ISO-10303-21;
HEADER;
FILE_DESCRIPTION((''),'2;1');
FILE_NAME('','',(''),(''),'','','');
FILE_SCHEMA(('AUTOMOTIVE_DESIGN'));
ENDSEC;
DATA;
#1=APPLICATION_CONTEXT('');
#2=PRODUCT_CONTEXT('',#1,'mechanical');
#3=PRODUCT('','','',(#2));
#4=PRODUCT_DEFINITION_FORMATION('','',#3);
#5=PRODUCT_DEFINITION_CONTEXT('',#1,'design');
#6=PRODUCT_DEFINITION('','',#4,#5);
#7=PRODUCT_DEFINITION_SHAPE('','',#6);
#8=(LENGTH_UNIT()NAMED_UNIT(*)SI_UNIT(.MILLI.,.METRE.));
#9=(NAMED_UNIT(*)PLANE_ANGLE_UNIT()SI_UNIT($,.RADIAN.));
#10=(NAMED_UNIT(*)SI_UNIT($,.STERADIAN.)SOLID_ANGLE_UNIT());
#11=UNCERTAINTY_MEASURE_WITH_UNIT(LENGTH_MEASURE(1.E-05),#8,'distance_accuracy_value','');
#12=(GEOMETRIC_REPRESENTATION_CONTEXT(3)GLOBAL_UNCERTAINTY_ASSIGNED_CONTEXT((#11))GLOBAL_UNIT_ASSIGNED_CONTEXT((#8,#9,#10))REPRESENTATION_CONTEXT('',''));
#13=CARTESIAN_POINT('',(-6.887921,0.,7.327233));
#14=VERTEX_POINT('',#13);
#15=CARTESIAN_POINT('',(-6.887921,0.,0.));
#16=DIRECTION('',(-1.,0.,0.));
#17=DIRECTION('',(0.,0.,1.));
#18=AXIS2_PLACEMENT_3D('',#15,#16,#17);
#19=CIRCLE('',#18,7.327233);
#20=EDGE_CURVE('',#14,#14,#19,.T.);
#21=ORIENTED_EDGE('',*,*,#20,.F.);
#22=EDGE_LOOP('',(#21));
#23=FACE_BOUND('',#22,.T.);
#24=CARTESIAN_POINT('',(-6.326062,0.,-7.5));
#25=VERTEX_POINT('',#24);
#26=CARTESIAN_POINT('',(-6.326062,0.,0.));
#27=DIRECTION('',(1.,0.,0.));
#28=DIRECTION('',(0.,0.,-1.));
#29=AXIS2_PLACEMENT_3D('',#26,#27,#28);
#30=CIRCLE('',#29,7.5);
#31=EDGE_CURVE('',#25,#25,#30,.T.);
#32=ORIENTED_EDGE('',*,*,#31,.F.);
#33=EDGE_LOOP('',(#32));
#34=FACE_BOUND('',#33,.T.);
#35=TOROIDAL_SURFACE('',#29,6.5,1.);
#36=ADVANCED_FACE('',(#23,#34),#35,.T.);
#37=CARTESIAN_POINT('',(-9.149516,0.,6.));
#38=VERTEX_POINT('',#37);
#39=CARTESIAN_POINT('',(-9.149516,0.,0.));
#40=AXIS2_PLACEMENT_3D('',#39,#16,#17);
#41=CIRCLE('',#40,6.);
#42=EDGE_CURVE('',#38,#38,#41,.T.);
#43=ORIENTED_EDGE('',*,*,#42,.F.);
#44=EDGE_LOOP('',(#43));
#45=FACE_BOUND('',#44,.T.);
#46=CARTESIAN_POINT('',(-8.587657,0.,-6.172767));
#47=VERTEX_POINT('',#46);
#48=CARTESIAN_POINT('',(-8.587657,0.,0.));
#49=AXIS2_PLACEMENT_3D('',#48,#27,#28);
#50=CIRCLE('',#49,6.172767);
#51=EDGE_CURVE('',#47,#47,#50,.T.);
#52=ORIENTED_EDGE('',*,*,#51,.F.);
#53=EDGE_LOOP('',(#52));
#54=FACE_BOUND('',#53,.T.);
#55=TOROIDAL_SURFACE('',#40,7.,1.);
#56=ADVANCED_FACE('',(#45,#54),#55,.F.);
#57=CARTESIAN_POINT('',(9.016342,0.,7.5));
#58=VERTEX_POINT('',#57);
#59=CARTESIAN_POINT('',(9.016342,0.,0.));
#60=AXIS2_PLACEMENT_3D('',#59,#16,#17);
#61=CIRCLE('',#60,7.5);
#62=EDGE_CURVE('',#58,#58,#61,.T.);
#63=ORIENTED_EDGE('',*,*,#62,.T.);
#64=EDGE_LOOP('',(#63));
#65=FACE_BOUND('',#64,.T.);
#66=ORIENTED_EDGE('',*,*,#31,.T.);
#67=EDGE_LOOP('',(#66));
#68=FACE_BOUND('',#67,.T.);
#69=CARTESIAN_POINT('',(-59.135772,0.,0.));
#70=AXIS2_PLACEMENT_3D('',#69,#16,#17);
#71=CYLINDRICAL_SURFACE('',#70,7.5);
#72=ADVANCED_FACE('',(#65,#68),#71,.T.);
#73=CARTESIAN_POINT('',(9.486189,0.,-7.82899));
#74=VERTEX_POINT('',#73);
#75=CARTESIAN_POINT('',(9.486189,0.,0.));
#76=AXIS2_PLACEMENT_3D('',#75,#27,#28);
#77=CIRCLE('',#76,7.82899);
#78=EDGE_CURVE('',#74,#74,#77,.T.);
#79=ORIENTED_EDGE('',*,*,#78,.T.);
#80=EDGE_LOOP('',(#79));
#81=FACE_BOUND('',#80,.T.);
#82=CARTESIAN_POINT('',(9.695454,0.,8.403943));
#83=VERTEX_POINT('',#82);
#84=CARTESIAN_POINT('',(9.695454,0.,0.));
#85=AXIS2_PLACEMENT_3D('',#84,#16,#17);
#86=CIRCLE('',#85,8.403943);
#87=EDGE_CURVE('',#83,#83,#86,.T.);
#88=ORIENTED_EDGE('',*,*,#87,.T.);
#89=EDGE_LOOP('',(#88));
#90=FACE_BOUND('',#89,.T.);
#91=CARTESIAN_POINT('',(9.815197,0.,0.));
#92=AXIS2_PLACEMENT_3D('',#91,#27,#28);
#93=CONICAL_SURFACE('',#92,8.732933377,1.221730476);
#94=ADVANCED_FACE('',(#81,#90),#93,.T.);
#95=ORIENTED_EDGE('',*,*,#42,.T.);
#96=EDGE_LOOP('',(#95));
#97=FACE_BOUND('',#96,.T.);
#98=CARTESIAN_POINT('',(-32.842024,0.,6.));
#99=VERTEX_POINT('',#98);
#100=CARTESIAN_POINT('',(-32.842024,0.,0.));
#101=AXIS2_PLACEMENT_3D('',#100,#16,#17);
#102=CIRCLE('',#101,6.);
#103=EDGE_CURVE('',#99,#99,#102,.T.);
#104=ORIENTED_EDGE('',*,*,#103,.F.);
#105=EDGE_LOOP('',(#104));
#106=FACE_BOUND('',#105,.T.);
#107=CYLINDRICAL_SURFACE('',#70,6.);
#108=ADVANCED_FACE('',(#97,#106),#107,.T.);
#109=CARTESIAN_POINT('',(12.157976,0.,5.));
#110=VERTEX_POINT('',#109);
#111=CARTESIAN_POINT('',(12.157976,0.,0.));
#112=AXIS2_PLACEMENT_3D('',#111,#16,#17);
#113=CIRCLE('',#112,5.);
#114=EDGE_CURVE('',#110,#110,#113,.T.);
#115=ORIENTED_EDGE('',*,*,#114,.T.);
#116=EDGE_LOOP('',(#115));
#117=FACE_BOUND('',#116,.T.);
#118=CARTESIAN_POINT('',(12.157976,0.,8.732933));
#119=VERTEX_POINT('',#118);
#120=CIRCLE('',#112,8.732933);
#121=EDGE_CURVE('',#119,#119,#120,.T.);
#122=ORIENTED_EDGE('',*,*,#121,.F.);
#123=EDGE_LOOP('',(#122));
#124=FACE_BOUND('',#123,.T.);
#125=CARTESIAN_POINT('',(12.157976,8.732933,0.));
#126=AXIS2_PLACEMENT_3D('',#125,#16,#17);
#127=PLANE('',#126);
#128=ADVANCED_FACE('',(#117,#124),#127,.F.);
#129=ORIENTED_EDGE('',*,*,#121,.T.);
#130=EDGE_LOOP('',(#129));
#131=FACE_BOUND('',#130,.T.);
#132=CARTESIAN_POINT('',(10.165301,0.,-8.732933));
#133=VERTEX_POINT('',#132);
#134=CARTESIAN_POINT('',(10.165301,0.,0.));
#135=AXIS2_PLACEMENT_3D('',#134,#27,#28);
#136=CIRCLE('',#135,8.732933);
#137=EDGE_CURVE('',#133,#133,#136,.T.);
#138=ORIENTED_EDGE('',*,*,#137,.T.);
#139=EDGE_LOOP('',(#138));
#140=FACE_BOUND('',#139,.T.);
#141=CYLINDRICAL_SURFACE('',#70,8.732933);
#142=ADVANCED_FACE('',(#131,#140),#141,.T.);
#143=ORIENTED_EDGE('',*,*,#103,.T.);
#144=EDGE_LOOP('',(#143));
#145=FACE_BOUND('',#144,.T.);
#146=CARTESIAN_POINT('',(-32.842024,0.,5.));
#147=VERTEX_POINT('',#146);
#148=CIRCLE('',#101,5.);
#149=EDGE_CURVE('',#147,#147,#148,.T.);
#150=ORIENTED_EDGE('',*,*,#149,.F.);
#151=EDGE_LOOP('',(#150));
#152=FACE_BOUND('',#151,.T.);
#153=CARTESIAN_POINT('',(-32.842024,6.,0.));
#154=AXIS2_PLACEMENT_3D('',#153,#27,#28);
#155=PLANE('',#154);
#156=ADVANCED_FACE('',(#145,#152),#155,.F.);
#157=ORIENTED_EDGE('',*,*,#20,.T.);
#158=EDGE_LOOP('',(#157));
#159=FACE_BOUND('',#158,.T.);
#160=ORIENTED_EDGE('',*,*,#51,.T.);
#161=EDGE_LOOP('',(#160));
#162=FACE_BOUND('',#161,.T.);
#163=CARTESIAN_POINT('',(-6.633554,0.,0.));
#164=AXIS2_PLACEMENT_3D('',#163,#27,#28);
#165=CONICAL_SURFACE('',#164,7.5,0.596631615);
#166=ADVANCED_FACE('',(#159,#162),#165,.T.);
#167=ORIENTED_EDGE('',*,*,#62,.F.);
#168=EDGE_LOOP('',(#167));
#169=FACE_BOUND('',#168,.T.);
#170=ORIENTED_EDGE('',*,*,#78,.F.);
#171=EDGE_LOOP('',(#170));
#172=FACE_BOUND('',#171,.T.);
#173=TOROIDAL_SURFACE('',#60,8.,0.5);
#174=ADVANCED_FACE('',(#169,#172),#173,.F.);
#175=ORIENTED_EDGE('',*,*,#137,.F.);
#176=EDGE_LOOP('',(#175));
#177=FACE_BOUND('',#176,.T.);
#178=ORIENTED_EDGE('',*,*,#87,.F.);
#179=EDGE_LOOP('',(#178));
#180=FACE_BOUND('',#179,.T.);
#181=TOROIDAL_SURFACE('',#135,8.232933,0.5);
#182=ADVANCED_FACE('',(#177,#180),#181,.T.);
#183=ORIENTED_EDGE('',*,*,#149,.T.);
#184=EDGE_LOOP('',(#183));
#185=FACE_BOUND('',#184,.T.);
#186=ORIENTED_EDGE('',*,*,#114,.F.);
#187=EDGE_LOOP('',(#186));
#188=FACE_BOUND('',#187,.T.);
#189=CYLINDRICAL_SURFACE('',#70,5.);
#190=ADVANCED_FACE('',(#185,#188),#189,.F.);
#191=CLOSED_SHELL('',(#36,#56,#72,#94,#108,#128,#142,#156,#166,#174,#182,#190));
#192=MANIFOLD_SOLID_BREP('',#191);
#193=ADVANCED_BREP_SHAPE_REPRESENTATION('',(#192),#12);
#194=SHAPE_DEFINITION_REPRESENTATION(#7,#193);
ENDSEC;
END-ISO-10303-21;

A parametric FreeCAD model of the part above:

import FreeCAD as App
import Part
import Sketcher
Q = App.Units.Quantity


def edges_at(feature, points):
    """Names of the edges that pass closest to the given points."""
    edges = feature.Shape.Edges
    near = lambda p: min(range(len(edges)), key=lambda i: edges[i].distToShape(Part.Vertex(*p))[0])
    return sorted({f"Edge{near(p) + 1}" for p in points})


def add_polygon(sketch, points):
    """Adds a closed chain of lines whose ends are joined by coincident constraints."""
    first, n = sketch.GeometryCount, len(points)
    for a, b in zip(points, points[1:] + points[:1]):
        sketch.addGeometry(Part.LineSegment(App.Vector(*a, 0), App.Vector(*b, 0)), False)
    for i in range(n):
        sketch.addConstraint(Sketcher.Constraint("Coincident", first + i, 2, first + (i + 1) % n, 1))

doc = App.newDocument("Part")
body = doc.addObject("PartDesign::Body", "Body")

sketch1 = body.newObject("Sketcher::SketchObject", "Sketch")
sketch1.AttachmentSupport = (doc.getObject("XY_Plane"), [""])
sketch1.MapMode = "FlatFace"
add_polygon(sketch1, [(-32.8, 5), (12.2, 5), (12.2, 8.7), (9.8, 8.7), (9.4, 7.5), (-6.6, 7.5), (-8.8, 6), (-32.8, 6)])
sketch1.addConstraint(Sketcher.Constraint("Horizontal", 0))
sketch1.addConstraint(Sketcher.Constraint("Vertical", 1))
sketch1.addConstraint(Sketcher.Constraint("Horizontal", 2))
sketch1.addConstraint(Sketcher.Constraint("Horizontal", 4))
sketch1.addConstraint(Sketcher.Constraint("Horizontal", 6))
sketch1.addConstraint(Sketcher.Constraint("Vertical", 7))
sketch1.addConstraint(Sketcher.Constraint("DistanceX", 0, 1, 0, 2, Q("45 mm")))
sketch1.addConstraint(Sketcher.Constraint("DistanceX", 4, 2, 4, 1, Q("16 mm")))
sketch1.addConstraint(Sketcher.Constraint("DistanceX", 6, 2, 6, 1, Q("24 mm")))
sketch1.addConstraint(Sketcher.Constraint("DistanceY", 7, 2, 7, 1, Q("1 mm")))
sketch1.addConstraint(Sketcher.Constraint("Angle", 3, Q("-110 deg")))
sketch1.addConstraint(Sketcher.Constraint("DistanceY", -1, 1, 0, 2, Q("5 mm")))
sketch1.addConstraint(Sketcher.Constraint("DistanceY", -1, 1, 3, 2, Q("7.5 mm")))
sketch1.addConstraint(Sketcher.Constraint("DistanceX", 2, 2, 2, 1, Q("2.342779 mm")))
sketch1.addConstraint(Sketcher.Constraint("Distance", 3, Q("1.31206 mm")))
sketch1.addConstraint(Sketcher.Constraint("DistanceX", -1, 1, 0, 2, Q("12.157976 mm")))
revolution = body.newObject("PartDesign::Revolution", "Revolution")
revolution.Profile = sketch1
revolution.ReferenceAxis = (sketch1, ["H_Axis"])
revolution.Angle = 360
doc.recompute()

fillet = body.newObject("PartDesign::Fillet", "Fillet")
fillet.Base = (revolution, edges_at(revolution, [(9.366, 0, -7.5)]))
fillet.Radius = 0.5
doc.recompute()

fillet2 = body.newObject("PartDesign::Fillet", "Fillet001")
fillet2.Base = (fillet, edges_at(fillet, [(9.815, 0, -8.733)]))
fillet2.Radius = 0.5
doc.recompute()

fillet3 = body.newObject("PartDesign::Fillet", "Fillet002")
fillet3.Base = (fillet2, edges_at(fillet2, [(-6.634, 0, -7.5)]))
fillet3.Radius = 1
doc.recompute()

fillet4 = body.newObject("PartDesign::Fillet", "Fillet003")
fillet4.Base = (fillet3, edges_at(fillet3, [(-8.842, 0, -6)]))
fillet4.Radius = 1

doc.recompute()
